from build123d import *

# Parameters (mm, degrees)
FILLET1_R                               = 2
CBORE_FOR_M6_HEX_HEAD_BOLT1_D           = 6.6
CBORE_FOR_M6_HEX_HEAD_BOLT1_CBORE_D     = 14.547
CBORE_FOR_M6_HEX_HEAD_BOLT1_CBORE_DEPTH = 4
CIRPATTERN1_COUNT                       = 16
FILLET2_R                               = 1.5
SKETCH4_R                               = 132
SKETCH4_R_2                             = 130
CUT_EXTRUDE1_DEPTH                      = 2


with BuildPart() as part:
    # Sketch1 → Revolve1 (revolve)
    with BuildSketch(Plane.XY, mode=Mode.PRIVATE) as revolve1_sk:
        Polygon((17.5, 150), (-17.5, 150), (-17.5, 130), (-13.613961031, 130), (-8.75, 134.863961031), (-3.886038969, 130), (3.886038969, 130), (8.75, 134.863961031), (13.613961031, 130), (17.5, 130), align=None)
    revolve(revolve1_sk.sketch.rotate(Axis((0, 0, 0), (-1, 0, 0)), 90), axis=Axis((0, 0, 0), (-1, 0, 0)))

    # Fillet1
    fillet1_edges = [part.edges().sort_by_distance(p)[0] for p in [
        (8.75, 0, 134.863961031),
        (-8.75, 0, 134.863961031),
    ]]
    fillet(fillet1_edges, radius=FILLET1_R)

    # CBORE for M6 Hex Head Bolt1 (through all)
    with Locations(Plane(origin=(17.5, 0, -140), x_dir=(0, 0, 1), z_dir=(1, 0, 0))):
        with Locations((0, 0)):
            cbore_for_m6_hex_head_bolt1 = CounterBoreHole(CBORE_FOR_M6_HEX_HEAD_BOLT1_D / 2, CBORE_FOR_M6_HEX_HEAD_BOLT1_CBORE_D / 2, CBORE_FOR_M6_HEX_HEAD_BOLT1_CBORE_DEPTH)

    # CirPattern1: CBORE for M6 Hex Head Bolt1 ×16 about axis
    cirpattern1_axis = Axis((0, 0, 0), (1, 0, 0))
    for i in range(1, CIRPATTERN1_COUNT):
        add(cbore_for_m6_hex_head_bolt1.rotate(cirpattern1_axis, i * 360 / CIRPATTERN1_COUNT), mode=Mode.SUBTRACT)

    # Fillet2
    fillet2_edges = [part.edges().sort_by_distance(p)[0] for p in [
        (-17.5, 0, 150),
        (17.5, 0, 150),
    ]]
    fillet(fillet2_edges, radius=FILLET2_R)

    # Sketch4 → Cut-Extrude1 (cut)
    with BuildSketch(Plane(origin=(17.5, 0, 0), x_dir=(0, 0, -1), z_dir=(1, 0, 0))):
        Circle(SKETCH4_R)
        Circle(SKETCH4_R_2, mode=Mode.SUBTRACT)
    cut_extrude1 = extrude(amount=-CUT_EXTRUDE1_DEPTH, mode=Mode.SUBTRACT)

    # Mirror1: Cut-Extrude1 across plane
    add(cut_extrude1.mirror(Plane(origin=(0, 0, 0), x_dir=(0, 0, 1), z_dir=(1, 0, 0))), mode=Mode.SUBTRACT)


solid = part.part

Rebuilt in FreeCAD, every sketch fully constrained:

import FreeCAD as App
import Part
import Sketcher

V = App.Vector


def edges_at(feature, points):
    """Names of the edges that pass closest to the given points."""
    edges = feature.Shape.Edges
    near = lambda p: min(range(len(edges)), key=lambda i: edges[i].distToShape(Part.Vertex(*p))[0])
    return sorted({f"Edge{near(p) + 1}" for p in points})

doc = App.newDocument("Part")
body = doc.addObject("PartDesign::Body", "Body")

# Sketch on XY plane
sketch1 = doc.addObject("Sketcher::SketchObject", "Sketch")
body.addObject(sketch1)
sketch1.AttachmentSupport = (doc.XY_Plane, [""])
sketch1.MapMode = "FlatFace"
sketch1.addGeometry([
    Part.LineSegment(V(17.5, 150, 0), V(-17.5, 150, 0)),  # 0
    Part.LineSegment(V(-17.5, 150, 0), V(-17.5, 130, 0)),  # 1
    Part.LineSegment(V(-17.5, 130, 0), V(-13.6, 130, 0)),  # 2
    Part.LineSegment(V(-13.6, 130, 0), V(-8.8, 134.9, 0)),  # 3
    Part.LineSegment(V(-8.8, 134.9, 0), V(-3.9, 130, 0)),  # 4
    Part.LineSegment(V(-3.9, 130, 0), V(3.9, 130, 0)),  # 5
    Part.LineSegment(V(3.9, 130, 0), V(8.8, 134.9, 0)),  # 6
    Part.LineSegment(V(8.8, 134.9, 0), V(13.6, 130, 0)),  # 7
    Part.LineSegment(V(13.6, 130, 0), V(17.5, 130, 0)),  # 8
    Part.LineSegment(V(17.5, 130, 0), V(17.5, 150, 0)),  # 9
], False)
sketch1.addConstraint([
    Sketcher.Constraint("Coincident", 0, 2, 1, 1),
    Sketcher.Constraint("Coincident", 1, 2, 2, 1),
    Sketcher.Constraint("Coincident", 2, 2, 3, 1),
    Sketcher.Constraint("Coincident", 3, 2, 4, 1),
    Sketcher.Constraint("Coincident", 4, 2, 5, 1),
    Sketcher.Constraint("Coincident", 5, 2, 6, 1),
    Sketcher.Constraint("Coincident", 6, 2, 7, 1),
    Sketcher.Constraint("Coincident", 7, 2, 8, 1),
    Sketcher.Constraint("Coincident", 8, 2, 9, 1),
    Sketcher.Constraint("Coincident", 9, 2, 0, 1),
    Sketcher.Constraint("Horizontal", 0),
    Sketcher.Constraint("Vertical", 1),
    Sketcher.Constraint("Horizontal", 2),
    Sketcher.Constraint("Horizontal", 5),
    Sketcher.Constraint("Horizontal", 8),
    Sketcher.Constraint("Vertical", 9),
    Sketcher.Constraint("Symmetric", 3, 2, 6, 2, -2),
    Sketcher.Constraint("Symmetric", 2, 2, 7, 2, -2),
    Sketcher.Constraint("Perpendicular", 3, 4),
    Sketcher.Constraint("Perpendicular", 4, 6),
    Sketcher.Constraint("Perpendicular", 6, 7),
    Sketcher.Constraint("Horizontal", 2, 2, 4, 2),
    Sketcher.Constraint("Equal", 2, 8),
    Sketcher.Constraint("DistanceX", 0, 2, 0, 1, 35.0),
    Sketcher.Constraint("DistanceY", 1, 2, 1, 1, 20.0),
    Sketcher.Constraint("DistanceY", -1, 1, 0, 2, 150.0),
    Sketcher.Constraint("DistanceX", 2, 2, 5, 2, 17.5),
    Sketcher.Constraint("DistanceX", 2, 1, 2, 2, 3.886039),
])
revolution = doc.addObject("PartDesign::Revolution", "Revolution")
body.addObject(revolution)
revolution.Profile = sketch1
revolution.ReferenceAxis = (sketch1, ["H_Axis"])
revolution.Angle = 360
doc.recompute()

fillet = doc.addObject("PartDesign::Fillet", "Fillet")
body.addObject(fillet)
fillet.Base = (revolution, edges_at(revolution, [(8.75, 0, 134.864), (-8.75, 0, 134.864)]))
fillet.Radius = 2

# Sketch on YZ plane
sketch2 = doc.addObject("Sketcher::SketchObject", "Sketch001")
body.addObject(sketch2)
sketch2.AttachmentSupport = (doc.YZ_Plane, [""])
sketch2.MapMode = "FlatFace"
sketch2.AttachmentOffset = App.Placement(V(0, 0, 17.5), App.Rotation())
sketch2.addGeometry(Part.Circle(V(0, -140, 0), V(0, 0, 1), 3.3), False)
sketch2.addConstraint([
    Sketcher.Constraint("PointOnObject", 0, 3, -2),
    Sketcher.Constraint("Diameter", 0, 6.6),
    Sketcher.Constraint("DistanceY", 0, 3, -1, 1, 140.0),
])
doc.recompute()
hole = doc.addObject("PartDesign::Hole", "Hole")
body.addObject(hole)
hole.Profile = sketch2
hole.ThreadType = "None"
hole.Diameter = 6.6
hole.DepthType = "ThroughAll"
hole.HoleCutType = "Counterbore"
hole.HoleCutDiameter = 14.547
hole.HoleCutDepth = 4
doc.recompute()

polarpattern = doc.addObject("PartDesign::PolarPattern", "PolarPattern")
body.addObject(polarpattern)
polarpattern.Originals = [hole]
polarpattern.Axis = (doc.X_Axis, [""])
polarpattern.Angle = 360
polarpattern.Occurrences = 16
body.Tip = polarpattern
doc.recompute()

fillet2 = doc.addObject("PartDesign::Fillet", "Fillet001")
body.addObject(fillet2)
fillet2.Base = (polarpattern, edges_at(polarpattern, [(-17.5, 0, 150), (17.5, 0, 150)]))
fillet2.Radius = 1.5

# Sketch on YZ plane
sketch3 = doc.addObject("Sketcher::SketchObject", "Sketch002")
body.addObject(sketch3)
sketch3.AttachmentSupport = (doc.YZ_Plane, [""])
sketch3.MapMode = "FlatFace"
sketch3.AttachmentOffset = App.Placement(V(0, 0, 17.5), App.Rotation())
sketch3.addGeometry([
    Part.Circle(V(0, 0, 0), V(0, 0, 1), 132),
    Part.Circle(V(0, 0, 0), V(0, 0, 1), 130),
], False)
sketch3.addConstraint([
    Sketcher.Constraint("Coincident", 0, 3, -1, 1),
    Sketcher.Constraint("Coincident", 1, 3, -1, 1),
    Sketcher.Constraint("Diameter", 0, 264.0),
    Sketcher.Constraint("Diameter", 1, 260.0),
])
pocket1 = doc.addObject("PartDesign::Pocket", "Pocket")
body.addObject(pocket1)
pocket1.Profile = sketch3
pocket1.Length = 2
doc.recompute()

mirrored = doc.addObject("PartDesign::Mirrored", "Mirrored")
body.addObject(mirrored)
mirrored.Originals = [pocket1]
mirrored.MirrorPlane = (doc.YZ_Plane, [""])
body.Tip = mirrored

doc.recompute()
